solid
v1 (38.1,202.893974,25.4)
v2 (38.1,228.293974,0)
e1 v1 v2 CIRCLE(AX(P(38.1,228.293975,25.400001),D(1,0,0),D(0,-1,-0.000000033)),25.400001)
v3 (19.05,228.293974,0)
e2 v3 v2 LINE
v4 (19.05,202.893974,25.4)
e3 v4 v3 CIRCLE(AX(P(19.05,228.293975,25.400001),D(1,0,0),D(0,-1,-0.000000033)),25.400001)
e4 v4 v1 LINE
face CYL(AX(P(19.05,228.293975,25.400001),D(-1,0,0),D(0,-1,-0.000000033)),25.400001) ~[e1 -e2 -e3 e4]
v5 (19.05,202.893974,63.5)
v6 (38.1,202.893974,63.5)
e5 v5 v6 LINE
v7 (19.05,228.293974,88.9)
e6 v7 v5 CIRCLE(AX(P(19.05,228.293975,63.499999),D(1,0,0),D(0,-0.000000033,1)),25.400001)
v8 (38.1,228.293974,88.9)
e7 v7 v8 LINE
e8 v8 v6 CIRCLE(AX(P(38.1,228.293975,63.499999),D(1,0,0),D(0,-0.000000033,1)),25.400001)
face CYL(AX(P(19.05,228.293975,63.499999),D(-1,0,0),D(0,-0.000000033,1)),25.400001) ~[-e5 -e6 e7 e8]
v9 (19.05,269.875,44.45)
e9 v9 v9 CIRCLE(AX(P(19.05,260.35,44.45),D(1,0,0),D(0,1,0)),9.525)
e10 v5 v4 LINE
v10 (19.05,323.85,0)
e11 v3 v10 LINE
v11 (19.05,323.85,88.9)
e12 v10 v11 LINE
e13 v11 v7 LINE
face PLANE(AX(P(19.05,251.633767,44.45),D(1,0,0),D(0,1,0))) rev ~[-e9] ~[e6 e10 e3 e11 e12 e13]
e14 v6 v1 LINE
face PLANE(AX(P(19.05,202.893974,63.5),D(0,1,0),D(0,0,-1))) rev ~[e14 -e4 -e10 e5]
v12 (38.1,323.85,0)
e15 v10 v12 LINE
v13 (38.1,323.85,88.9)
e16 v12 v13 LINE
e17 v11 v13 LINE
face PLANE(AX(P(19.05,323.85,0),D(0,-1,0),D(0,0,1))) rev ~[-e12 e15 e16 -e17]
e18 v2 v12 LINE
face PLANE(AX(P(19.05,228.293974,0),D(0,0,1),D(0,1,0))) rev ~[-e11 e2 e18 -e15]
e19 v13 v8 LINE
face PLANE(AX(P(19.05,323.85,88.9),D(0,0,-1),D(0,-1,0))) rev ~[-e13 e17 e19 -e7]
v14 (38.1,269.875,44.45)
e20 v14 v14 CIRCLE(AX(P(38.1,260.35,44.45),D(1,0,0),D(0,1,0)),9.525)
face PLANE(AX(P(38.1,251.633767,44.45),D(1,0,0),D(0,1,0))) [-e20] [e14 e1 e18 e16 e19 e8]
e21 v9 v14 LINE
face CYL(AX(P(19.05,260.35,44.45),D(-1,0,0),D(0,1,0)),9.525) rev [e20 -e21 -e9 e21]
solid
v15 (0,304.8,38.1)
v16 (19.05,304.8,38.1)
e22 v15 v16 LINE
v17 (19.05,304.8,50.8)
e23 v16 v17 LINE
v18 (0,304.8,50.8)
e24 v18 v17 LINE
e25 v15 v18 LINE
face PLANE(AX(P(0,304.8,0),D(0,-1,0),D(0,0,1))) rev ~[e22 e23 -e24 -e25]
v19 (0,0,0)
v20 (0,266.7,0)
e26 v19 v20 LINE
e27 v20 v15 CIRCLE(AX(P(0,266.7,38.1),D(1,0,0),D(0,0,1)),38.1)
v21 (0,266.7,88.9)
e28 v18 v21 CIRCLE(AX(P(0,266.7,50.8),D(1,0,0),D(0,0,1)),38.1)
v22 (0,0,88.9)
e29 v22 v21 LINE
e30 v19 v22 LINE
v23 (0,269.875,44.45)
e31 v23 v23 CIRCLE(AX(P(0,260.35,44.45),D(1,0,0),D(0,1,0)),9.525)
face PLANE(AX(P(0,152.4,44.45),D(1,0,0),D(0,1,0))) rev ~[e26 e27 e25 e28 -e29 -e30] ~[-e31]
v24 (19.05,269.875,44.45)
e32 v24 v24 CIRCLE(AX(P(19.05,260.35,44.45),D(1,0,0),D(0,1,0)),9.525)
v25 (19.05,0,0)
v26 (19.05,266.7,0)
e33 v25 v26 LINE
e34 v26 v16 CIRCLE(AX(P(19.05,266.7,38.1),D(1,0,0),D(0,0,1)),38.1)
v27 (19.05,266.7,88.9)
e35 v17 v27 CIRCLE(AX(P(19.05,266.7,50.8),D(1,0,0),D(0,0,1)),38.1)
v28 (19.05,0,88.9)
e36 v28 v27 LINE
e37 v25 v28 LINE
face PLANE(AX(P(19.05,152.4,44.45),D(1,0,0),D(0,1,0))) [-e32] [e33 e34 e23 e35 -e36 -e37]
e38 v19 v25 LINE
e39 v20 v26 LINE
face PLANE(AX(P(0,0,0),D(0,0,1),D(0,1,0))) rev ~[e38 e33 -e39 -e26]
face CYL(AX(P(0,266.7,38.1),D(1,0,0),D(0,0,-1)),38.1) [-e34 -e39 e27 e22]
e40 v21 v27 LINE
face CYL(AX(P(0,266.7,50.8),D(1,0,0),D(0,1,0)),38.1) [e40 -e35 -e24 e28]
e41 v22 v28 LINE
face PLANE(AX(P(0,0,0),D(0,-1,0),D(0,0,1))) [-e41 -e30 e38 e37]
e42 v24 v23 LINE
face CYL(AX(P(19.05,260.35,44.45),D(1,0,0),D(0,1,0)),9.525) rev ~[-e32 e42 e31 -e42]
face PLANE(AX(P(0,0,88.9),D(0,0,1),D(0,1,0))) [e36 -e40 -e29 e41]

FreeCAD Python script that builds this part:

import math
import FreeCAD as App
import Part
import Sketcher

V = App.Vector
Q = App.Units.Quantity


def edges_at(feature, points):
    """Names of the edges that pass closest to the given points."""
    edges = feature.Shape.Edges
    near = lambda p: min(range(len(edges)), key=lambda i: edges[i].distToShape(Part.Vertex(*p))[0])
    return sorted({f"Edge{near(p) + 1}" for p in points})

doc = App.newDocument("Part")
body = doc.addObject("PartDesign::Body", "Body")

# Sketch on YZ plane
sketch1 = body.newObject("Sketcher::SketchObject", "Sketch")
sketch1.AttachmentSupport = (doc.getObject("YZ_Plane"), [""])
sketch1.MapMode = "FlatFace"
sketch1.addGeometry([
    Part.LineSegment(V(0, 89, 0), V(0, 0, 0)),
    Part.LineSegment(V(0, 0, 0), V(305, 0, 0)),
    Part.LineSegment(V(305, 0, 0), V(305, 89, 0)),
    Part.LineSegment(V(305, 89, 0), V(0, 89, 0)),
], False)
sketch1.addConstraint([
    Sketcher.Constraint("Coincident", 0, 2, 1, 1),
    Sketcher.Constraint("Coincident", 1, 2, 2, 1),
    Sketcher.Constraint("Coincident", 2, 2, 3, 1),
    Sketcher.Constraint("Coincident", 3, 2, 0, 1),
    Sketcher.Constraint("Vertical", 0),
    Sketcher.Constraint("Horizontal", 1),
    Sketcher.Constraint("Vertical", 2),
    Sketcher.Constraint("Horizontal", 3),
    Sketcher.Constraint("Coincident", 0, 2, -1, 1),
    Sketcher.Constraint("DistanceX", 1, 1, 1, 2, Q("12 in")),
    Sketcher.Constraint("DistanceY", 0, 2, 0, 1, Q("3.5 in")),
])
pad1 = body.newObject("PartDesign::Pad", "Pad")
pad1.Profile = sketch1
pad1.Length = Q("0.75 in")
doc.recompute()

fillet = body.newObject("PartDesign::Fillet", "Fillet")
fillet.Base = (pad1, edges_at(pad1, [(9.525, 304.8, 88.9), (9.525, 304.8, 0)]))
fillet.Radius = Q("1.5 in")

# Sketch on YZ plane
sketch2 = body.newObject("Sketcher::SketchObject", "Sketch001")
sketch2.AttachmentSupport = (doc.getObject("YZ_Plane"), [""])
sketch2.MapMode = "FlatFace"
sketch2.AttachmentOffset = App.Placement(V(0, 0, 0.75 * 25.4), App.Rotation())
sketch2.addGeometry(Part.Circle(V(260, 44, 0), V(0, 0, 1), 10), False)
sketch2.addConstraint([
    Sketcher.Constraint("Diameter", 0, Q("0.75 in")),
    Sketcher.Constraint("DistanceX", -1, 1, 0, 3, Q("10.25 in")),
    Sketcher.Constraint("DistanceY", -1, 1, 0, 3, Q("1.75 in")),
])
pocket1 = body.newObject("PartDesign::Pocket", "Pocket")
pocket1.Profile = sketch2
pocket1.Type = "ThroughAll"
body2 = doc.addObject("PartDesign::Body", "Body001")

# Sketch on YZ plane
sketch3 = body2.newObject("Sketcher::SketchObject", "Sketch002")
sketch3.AttachmentSupport = (doc.getObject("YZ_Plane001"), [""])
sketch3.MapMode = "FlatFace"
sketch3.AttachmentOffset = App.Placement(V(0, 0, 0.75 * 25.4), App.Rotation())
sketch3.addGeometry([
    Part.ArcOfCircle(Part.Circle(V(228, 63, 0), V(0, 0, 1), 25), math.radians(90), math.radians(180)),  # 0
    Part.LineSegment(V(203, 64, 0), V(203, 25, 0)),  # 1
    Part.ArcOfCircle(Part.Circle(V(228, 25, 0), V(0, 0, 1), 25), math.radians(-180), math.radians(-90)),  # 2
    Part.LineSegment(V(228, 0, 0), V(324, 0, 0)),  # 3
    Part.LineSegment(V(324, 0, 0), V(324, 89, 0)),  # 4
    Part.LineSegment(V(324, 89, 0), V(228, 89, 0)),  # 5
    Part.Circle(V(260, 44, 0), V(0, 0, 1), 10),  # 6
], False)
sketch3.addConstraint([
    Sketcher.Constraint("Tangent", 0, 2, 1, 1),
    Sketcher.Constraint("Tangent", 1, 2, 2, 1),
    Sketcher.Constraint("Tangent", 2, 2, 3, 1),
    Sketcher.Constraint("Coincident", 3, 2, 4, 1),
    Sketcher.Constraint("Coincident", 4, 2, 5, 1),
    Sketcher.Constraint("Tangent", 5, 2, 0, 1),
    Sketcher.Constraint("Vertical", 1),
    Sketcher.Constraint("Horizontal", 3),
    Sketcher.Constraint("Vertical", 4),
    Sketcher.Constraint("Horizontal", 5),
    Sketcher.Constraint("Equal", 0, 2),
    Sketcher.Constraint("PointOnObject", 2, 2, -1),
    Sketcher.Constraint("Radius", 0, Q("1 in")),
    Sketcher.Constraint("Diameter", 6, Q("0.75 in")),
    Sketcher.Constraint("DistanceY", 1, 2, 1, 1, Q("1.5 in")),
    Sketcher.Constraint("DistanceX", 6, 3, 3, 2, Q("2.5 in")),
    Sketcher.Constraint("DistanceX", -1, 1, 6, 3, Q("10.25 in")),
    Sketcher.Constraint("DistanceY", -1, 1, 6, 3, Q("1.75 in")),
    Sketcher.Constraint("DistanceX", 3, 1, 3, 2, Q("95.556026 mm")),
])
pad2 = body2.newObject("PartDesign::Pad", "Pad001")
pad2.Profile = sketch3
pad2.Length = Q("0.75 in")

doc.recompute()
